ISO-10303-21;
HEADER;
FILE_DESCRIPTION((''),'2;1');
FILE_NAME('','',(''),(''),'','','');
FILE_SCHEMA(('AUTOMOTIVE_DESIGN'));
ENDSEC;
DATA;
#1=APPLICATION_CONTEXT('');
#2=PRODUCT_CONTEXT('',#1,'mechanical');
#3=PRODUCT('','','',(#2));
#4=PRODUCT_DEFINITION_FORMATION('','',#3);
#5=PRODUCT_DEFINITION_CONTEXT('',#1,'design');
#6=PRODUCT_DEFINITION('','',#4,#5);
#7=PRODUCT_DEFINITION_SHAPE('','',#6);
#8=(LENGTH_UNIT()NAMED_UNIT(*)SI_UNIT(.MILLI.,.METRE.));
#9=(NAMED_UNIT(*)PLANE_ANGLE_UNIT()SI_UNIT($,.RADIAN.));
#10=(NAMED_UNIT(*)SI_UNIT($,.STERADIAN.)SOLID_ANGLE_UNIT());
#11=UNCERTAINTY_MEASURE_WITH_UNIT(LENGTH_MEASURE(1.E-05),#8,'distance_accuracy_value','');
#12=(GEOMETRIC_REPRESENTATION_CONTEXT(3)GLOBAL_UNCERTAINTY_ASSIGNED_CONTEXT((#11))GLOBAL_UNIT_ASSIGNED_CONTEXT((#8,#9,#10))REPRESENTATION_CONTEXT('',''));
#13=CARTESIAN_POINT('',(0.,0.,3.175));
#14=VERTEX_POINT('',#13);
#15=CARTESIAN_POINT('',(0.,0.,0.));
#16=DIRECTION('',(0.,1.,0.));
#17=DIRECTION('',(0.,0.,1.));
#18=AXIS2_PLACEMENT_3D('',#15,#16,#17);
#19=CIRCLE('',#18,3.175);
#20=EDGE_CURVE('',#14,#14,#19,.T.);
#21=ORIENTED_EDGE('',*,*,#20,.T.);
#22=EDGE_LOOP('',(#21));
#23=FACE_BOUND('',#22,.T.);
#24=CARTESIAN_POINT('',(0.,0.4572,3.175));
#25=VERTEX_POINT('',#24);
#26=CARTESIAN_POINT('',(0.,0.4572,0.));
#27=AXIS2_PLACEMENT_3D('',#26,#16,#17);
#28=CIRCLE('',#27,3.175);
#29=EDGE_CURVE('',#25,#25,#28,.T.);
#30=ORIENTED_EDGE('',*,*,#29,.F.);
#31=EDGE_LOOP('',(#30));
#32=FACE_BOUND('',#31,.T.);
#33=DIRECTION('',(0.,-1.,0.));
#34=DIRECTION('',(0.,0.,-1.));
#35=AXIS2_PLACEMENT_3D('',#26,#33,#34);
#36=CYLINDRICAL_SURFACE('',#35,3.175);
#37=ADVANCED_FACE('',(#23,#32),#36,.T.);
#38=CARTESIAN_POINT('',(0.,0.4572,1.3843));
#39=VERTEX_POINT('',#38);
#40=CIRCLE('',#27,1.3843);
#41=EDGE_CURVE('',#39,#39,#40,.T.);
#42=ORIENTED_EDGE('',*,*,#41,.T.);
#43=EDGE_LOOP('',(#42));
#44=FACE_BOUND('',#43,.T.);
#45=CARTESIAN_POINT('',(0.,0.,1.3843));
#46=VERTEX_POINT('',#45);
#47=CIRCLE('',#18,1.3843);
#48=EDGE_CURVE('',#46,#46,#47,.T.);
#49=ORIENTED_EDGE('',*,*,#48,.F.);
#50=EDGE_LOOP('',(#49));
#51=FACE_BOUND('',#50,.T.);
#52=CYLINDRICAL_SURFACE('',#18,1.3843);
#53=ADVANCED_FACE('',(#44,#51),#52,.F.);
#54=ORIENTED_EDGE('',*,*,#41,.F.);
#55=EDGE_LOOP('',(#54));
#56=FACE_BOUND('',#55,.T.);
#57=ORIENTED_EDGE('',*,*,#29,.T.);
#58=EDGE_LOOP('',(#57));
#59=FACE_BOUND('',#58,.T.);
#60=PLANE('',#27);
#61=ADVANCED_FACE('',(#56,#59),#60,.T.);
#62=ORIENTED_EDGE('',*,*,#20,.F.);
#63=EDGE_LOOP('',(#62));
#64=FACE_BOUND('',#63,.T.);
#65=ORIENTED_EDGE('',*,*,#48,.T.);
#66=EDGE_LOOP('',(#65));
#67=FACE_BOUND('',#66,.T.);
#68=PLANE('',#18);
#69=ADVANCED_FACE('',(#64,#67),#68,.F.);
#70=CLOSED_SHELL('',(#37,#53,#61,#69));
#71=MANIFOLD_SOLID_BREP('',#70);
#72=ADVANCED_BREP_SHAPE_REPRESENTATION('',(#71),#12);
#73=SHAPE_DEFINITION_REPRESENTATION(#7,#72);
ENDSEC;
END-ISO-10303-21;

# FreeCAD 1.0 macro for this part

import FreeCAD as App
import Part
import Sketcher
Q = App.Units.Quantity

doc = App.newDocument("Part")
body = doc.addObject("PartDesign::Body", "Body")

sketch1 = body.newObject("Sketcher::SketchObject", "Sketch")
sketch1.AttachmentSupport = (doc.getObject("XZ_Plane"), [""])
sketch1.MapMode = "FlatFace"
sketch1.addGeometry(Part.Circle(App.Vector(0, 0, 0), App.Vector(0, 0, 1), 3.2), False)
sketch1.addConstraint(Sketcher.Constraint("Coincident", 0, 3, -1, 1))
sketch1.addConstraint(Sketcher.Constraint("Diameter", 0, Q("0.25 in")))
pad1 = body.newObject("PartDesign::Pad", "Pad")
pad1.Profile = sketch1
pad1.Length = Q("0.018 in")
pad1.Reversed = True

sketch2 = body.newObject("Sketcher::SketchObject", "Sketch001")
sketch2.AttachmentSupport = (doc.getObject("XZ_Plane"), [""])
sketch2.MapMode = "FlatFace"
sketch2.AttachmentOffset = App.Placement(App.Vector(0, 0, -0.018 * 25.4), App.Rotation())
sketch2.addGeometry(Part.Circle(App.Vector(0, 0, 0), App.Vector(0, 0, 1), 1.4), False)
sketch2.addConstraint(Sketcher.Constraint("Coincident", 0, 3, -1, 1))
sketch2.addConstraint(Sketcher.Constraint("Diameter", 0, Q("0.109 in")))
pocket1 = body.newObject("PartDesign::Pocket", "Pocket")
pocket1.Profile = sketch2
pocket1.Type = "ThroughAll"
pocket1.Reversed = True

doc.recompute()
